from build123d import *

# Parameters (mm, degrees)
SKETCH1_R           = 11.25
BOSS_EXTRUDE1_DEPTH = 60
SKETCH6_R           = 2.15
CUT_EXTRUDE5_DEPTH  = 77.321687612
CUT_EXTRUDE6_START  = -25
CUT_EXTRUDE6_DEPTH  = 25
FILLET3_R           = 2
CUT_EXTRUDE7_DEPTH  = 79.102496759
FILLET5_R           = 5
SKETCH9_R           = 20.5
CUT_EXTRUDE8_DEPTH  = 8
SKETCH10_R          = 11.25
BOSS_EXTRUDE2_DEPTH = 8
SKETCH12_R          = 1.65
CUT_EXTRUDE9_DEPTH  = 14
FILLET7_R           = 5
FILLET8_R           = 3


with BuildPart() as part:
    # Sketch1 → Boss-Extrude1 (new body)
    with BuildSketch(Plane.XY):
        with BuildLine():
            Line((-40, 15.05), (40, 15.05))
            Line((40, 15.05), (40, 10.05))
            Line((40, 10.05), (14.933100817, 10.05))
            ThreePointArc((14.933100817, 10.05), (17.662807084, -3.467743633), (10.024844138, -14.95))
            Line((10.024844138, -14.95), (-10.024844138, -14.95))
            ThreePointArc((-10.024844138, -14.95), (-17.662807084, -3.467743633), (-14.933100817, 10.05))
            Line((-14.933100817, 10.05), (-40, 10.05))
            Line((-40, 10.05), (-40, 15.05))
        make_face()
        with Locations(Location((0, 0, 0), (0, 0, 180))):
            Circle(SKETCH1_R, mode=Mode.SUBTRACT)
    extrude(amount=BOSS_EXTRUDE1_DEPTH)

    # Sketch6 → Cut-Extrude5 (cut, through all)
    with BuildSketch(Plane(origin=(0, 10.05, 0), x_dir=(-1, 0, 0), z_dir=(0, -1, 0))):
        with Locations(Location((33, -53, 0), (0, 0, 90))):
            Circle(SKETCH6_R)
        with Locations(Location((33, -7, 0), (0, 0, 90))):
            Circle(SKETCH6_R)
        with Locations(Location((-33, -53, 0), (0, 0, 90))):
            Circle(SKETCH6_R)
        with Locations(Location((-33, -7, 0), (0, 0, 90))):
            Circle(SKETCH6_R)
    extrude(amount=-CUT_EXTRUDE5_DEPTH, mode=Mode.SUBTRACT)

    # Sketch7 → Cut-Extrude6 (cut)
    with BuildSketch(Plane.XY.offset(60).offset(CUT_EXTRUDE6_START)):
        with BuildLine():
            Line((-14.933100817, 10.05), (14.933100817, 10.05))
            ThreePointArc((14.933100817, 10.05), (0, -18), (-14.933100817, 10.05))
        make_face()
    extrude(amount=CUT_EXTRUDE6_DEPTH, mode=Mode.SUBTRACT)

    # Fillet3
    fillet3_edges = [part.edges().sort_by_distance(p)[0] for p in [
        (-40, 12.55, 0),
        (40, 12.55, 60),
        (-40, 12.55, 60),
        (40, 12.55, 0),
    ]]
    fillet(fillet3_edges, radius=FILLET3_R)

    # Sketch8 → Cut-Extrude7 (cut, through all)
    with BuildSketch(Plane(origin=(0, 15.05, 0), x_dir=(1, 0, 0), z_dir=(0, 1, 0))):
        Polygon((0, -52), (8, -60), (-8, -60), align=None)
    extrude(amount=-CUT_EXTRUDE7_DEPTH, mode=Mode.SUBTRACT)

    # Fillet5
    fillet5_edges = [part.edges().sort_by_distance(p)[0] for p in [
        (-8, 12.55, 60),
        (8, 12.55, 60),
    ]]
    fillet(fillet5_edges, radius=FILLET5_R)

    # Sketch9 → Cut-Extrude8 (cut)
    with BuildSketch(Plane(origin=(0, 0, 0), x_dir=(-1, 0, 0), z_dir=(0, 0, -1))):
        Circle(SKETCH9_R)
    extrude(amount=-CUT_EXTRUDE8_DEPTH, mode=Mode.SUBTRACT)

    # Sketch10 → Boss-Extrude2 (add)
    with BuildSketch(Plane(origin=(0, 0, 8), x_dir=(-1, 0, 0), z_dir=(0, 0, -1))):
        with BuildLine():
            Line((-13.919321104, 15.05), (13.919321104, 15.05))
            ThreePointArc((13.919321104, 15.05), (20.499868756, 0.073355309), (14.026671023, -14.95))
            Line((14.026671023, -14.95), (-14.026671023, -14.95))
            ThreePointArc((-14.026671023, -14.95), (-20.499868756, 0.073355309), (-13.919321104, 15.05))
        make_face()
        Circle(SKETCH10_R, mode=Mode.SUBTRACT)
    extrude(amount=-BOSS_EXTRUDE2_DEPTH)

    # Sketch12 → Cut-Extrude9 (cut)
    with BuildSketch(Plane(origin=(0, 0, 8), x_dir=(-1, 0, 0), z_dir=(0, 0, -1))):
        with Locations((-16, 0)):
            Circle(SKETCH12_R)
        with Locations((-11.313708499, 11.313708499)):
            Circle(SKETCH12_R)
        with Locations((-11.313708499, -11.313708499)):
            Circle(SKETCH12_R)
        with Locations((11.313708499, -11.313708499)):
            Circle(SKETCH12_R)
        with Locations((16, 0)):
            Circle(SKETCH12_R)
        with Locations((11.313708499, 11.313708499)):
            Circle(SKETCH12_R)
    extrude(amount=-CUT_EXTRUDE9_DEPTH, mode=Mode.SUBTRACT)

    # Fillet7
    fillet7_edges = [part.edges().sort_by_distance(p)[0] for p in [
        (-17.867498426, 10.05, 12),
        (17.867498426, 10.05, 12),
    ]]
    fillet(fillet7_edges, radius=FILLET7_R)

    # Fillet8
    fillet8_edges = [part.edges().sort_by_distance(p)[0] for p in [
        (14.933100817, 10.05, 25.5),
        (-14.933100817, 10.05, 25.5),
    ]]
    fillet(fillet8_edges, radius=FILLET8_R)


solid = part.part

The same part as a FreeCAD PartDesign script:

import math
import FreeCAD as App
import Part
import Sketcher
from FreeCAD import Vector
Q = App.Units.Quantity


def edges_at(feature, points):
    """Names of the edges that pass closest to the given points."""
    edges = feature.Shape.Edges
    near = lambda p: min(range(len(edges)), key=lambda i: edges[i].distToShape(Part.Vertex(*p))[0])
    return sorted({f"Edge{near(p) + 1}" for p in points})

doc = App.newDocument("Part")
body = doc.addObject("PartDesign::Body", "Body")

# Sketch on XY plane
sketch1 = body.newObject("Sketcher::SketchObject", "Sketch")
sketch1.AttachmentSupport = (doc.getObject("XY_Plane"), [""])
sketch1.MapMode = "FlatFace"
sketch1.addGeometry([
    Part.LineSegment(Vector(40, 15, 0), Vector(-40, 15, 0)),  # 0
    Part.LineSegment(Vector(-40, 15, 0), Vector(-40, 10, 0)),  # 1
    Part.LineSegment(Vector(-40, 10, 0), Vector(-15, 10, 0)),  # 2
    Part.ArcOfCircle(Part.Circle(Vector(0, 0, 0), Vector(0, 0, 1), 18), math.radians(146), math.radians(236)),  # 3
    Part.LineSegment(Vector(-10, -15, 0), Vector(10, -15, 0)),  # 4
    Part.ArcOfCircle(Part.Circle(Vector(0, 0, 0), Vector(0, 0, 1), 18), math.radians(-56), math.radians(34)),  # 5
    Part.LineSegment(Vector(15, 10, 0), Vector(40, 10, 0)),  # 6
    Part.LineSegment(Vector(40, 10, 0), Vector(40, 15, 0)),  # 7
    Part.Circle(Vector(0, 0, 0), Vector(0, 0, 1), 11),  # 8
], False)
sketch1.addConstraint([
    Sketcher.Constraint("Coincident", 0, 2, 1, 1),
    Sketcher.Constraint("Coincident", 1, 2, 2, 1),
    Sketcher.Constraint("Coincident", 2, 2, 3, 1),
    Sketcher.Constraint("Coincident", 3, 2, 4, 1),
    Sketcher.Constraint("Coincident", 4, 2, 5, 1),
    Sketcher.Constraint("Coincident", 5, 2, 6, 1),
    Sketcher.Constraint("Coincident", 6, 2, 7, 1),
    Sketcher.Constraint("Coincident", 7, 2, 0, 1),
    Sketcher.Constraint("Horizontal", 0),
    Sketcher.Constraint("Vertical", 1),
    Sketcher.Constraint("Horizontal", 2),
    Sketcher.Constraint("Horizontal", 4),
    Sketcher.Constraint("Horizontal", 6),
    Sketcher.Constraint("Vertical", 7),
    Sketcher.Constraint("Coincident", 3, 3, -1, 1),
    Sketcher.Constraint("Coincident", 5, 3, -1, 1),
    Sketcher.Constraint("Coincident", 8, 3, -1, 1),
    Sketcher.Constraint("Equal", 3, 5),
    Sketcher.Constraint("Symmetric", 1, 2, 6, 2, -2),
    Sketcher.Constraint("Radius", 3, Q("18 mm")),
    Sketcher.Constraint("Diameter", 8, Q("22.5 mm")),
    Sketcher.Constraint("DistanceX", 0, 2, 0, 1, Q("80 mm")),
    Sketcher.Constraint("DistanceY", 1, 2, 1, 1, Q("5 mm")),
    Sketcher.Constraint("DistanceY", 3, 2, 2, 2, Q("25 mm")),
    Sketcher.Constraint("DistanceY", -1, 1, 0, 2, Q("15.05 mm")),
])
pad1 = body.newObject("PartDesign::Pad", "Pad")
pad1.Profile = sketch1
pad1.Length = 60

# Sketch on XZ plane
sketch2 = body.newObject("Sketcher::SketchObject", "Sketch001")
sketch2.AttachmentSupport = (doc.getObject("XZ_Plane"), [""])
sketch2.MapMode = "FlatFace"
sketch2.AttachmentOffset = App.Placement(Vector(0, 0, -10.05), App.Rotation())
sketch2.addGeometry([
    Part.Circle(Vector(-33, 53, 0), Vector(0, 0, 1), 2.1),
    Part.Circle(Vector(-33, 7, 0), Vector(0, 0, 1), 2.1),
    Part.Circle(Vector(33, 53, 0), Vector(0, 0, 1), 2.1),
    Part.Circle(Vector(33, 7, 0), Vector(0, 0, 1), 2.1),
], False)
sketch2.addConstraint([
    Sketcher.Constraint("Equal", 0, 1),
    Sketcher.Constraint("Equal", 1, 2),
    Sketcher.Constraint("Equal", 2, 3),
    Sketcher.Constraint("Symmetric", 0, 3, 2, 3, -2),
    Sketcher.Constraint("Symmetric", 1, 3, 3, 3, -2),
    Sketcher.Constraint("Vertical", 0, 3, 1, 3),
    Sketcher.Constraint("Diameter", 0, Q("4.3 mm")),
    Sketcher.Constraint("DistanceX", 0, 3, -1, 1, Q("33 mm")),
    Sketcher.Constraint("DistanceY", -1, 1, 0, 3, Q("53 mm")),
    Sketcher.Constraint("DistanceY", -1, 1, 1, 3, Q("7 mm")),
])
pocket1 = body.newObject("PartDesign::Pocket", "Pocket")
pocket1.Profile = sketch2
pocket1.Type = "ThroughAll"

# Sketch on XY plane
sketch3 = body.newObject("Sketcher::SketchObject", "Sketch002")
sketch3.AttachmentSupport = (doc.getObject("XY_Plane"), [""])
sketch3.MapMode = "FlatFace"
sketch3.AttachmentOffset = App.Placement(Vector(0, 0, 35), App.Rotation())
sketch3.addGeometry([
    Part.LineSegment(Vector(15, 10, 0), Vector(-15, 10, 0)),
    Part.ArcOfCircle(Part.Circle(Vector(0, 0, 0), Vector(0, 0, 1), 18), math.radians(146), math.radians(394)),
], False)
sketch3.addConstraint([
    Sketcher.Constraint("Coincident", 0, 1, 1, 2),
    Sketcher.Constraint("Coincident", 1, 1, 0, 2),
    Sketcher.Constraint("Horizontal", 0),
    Sketcher.Constraint("Coincident", 1, 3, -1, 1),
    Sketcher.Constraint("Radius", 1, Q("18 mm")),
    Sketcher.Constraint("DistanceY", -1, 1, 0, 1, Q("10.05 mm")),
])
pocket2 = body.newObject("PartDesign::Pocket", "Pocket001")
pocket2.Profile = sketch3
pocket2.Length = 25
pocket2.Reversed = True
doc.recompute()

fillet = body.newObject("PartDesign::Fillet", "Fillet")
fillet.Base = (pocket2, edges_at(pocket2, [
    (-40, 12.55, 0),
    (40, 12.55, 60),
    (-40, 12.55, 60),
    (40, 12.55, 0),
]))
fillet.Radius = 2

# Sketch on XZ plane
sketch4 = body.newObject("Sketcher::SketchObject", "Sketch003")
sketch4.AttachmentSupport = (doc.getObject("XZ_Plane"), [""])
sketch4.MapMode = "FlatFace"
sketch4.AttachmentOffset = App.Placement(Vector(0, 0, -15.05), App.Rotation())
sketch4.addGeometry([
    Part.LineSegment(Vector(8, 60, 0), Vector(0, 52, 0)),
    Part.LineSegment(Vector(0, 52, 0), Vector(-8, 60, 0)),
    Part.LineSegment(Vector(-8, 60, 0), Vector(8, 60, 0)),
], False)
sketch4.addConstraint([
    Sketcher.Constraint("Coincident", 0, 2, 1, 1),
    Sketcher.Constraint("Coincident", 1, 2, 2, 1),
    Sketcher.Constraint("Coincident", 2, 2, 0, 1),
    Sketcher.Constraint("Horizontal", 2),
    Sketcher.Constraint("PointOnObject", 0, 2, -2),
    Sketcher.Constraint("Perpendicular", 0, 1),
    Sketcher.Constraint("Equal", 0, 1),
    Sketcher.Constraint("DistanceX", 2, 1, 2, 2, Q("16 mm")),
    Sketcher.Constraint("DistanceY", -1, 1, 0, 2, Q("52 mm")),
])
pocket3 = body.newObject("PartDesign::Pocket", "Pocket002")
pocket3.Profile = sketch4
pocket3.Type = "ThroughAll"
pocket3.Reversed = True
doc.recompute()

fillet2 = body.newObject("PartDesign::Fillet", "Fillet001")
fillet2.Base = (pocket3, edges_at(pocket3, [(-8, 12.55, 60), (8, 12.55, 60)]))
fillet2.Radius = 5

# Sketch on XY plane
sketch5 = body.newObject("Sketcher::SketchObject", "Sketch004")
sketch5.AttachmentSupport = (doc.getObject("XY_Plane"), [""])
sketch5.MapMode = "FlatFace"
sketch5.addGeometry(Part.Circle(Vector(0, 0, 0), Vector(0, 0, 1), 20), False)
sketch5.addConstraint([
    Sketcher.Constraint("Coincident", 0, 3, -1, 1),
    Sketcher.Constraint("Diameter", 0, Q("41 mm")),
])
pocket4 = body.newObject("PartDesign::Pocket", "Pocket003")
pocket4.Profile = sketch5
pocket4.Length = 8
pocket4.Reversed = True

# Sketch on XY plane
sketch6 = body.newObject("Sketcher::SketchObject", "Sketch005")
sketch6.AttachmentSupport = (doc.getObject("XY_Plane"), [""])
sketch6.MapMode = "FlatFace"
sketch6.AttachmentOffset = App.Placement(Vector(0, 0, 8), App.Rotation())
sketch6.addGeometry([
    Part.LineSegment(Vector(-14, 15, 0), Vector(14, 15, 0)),  # 0
    Part.ArcOfCircle(Part.Circle(Vector(0, 0, 0), Vector(0, 0, 1), 20), math.radians(-47), math.radians(47)),  # 1
    Part.LineSegment(Vector(14, -15, 0), Vector(-14, -15, 0)),  # 2
    Part.ArcOfCircle(Part.Circle(Vector(0, 0, 0), Vector(0, 0, 1), 20), math.radians(133), math.radians(227)),  # 3
    Part.Circle(Vector(0, 0, 0), Vector(0, 0, 1), 11),  # 4
], False)
sketch6.addConstraint([
    Sketcher.Constraint("Coincident", 0, 2, 1, 2),
    Sketcher.Constraint("Coincident", 1, 1, 2, 1),
    Sketcher.Constraint("Coincident", 2, 2, 3, 2),
    Sketcher.Constraint("Coincident", 3, 1, 0, 1),
    Sketcher.Constraint("Horizontal", 0),
    Sketcher.Constraint("Horizontal", 2),
    Sketcher.Constraint("Coincident", 1, 3, -1, 1),
    Sketcher.Constraint("Coincident", 3, 3, -1, 1),
    Sketcher.Constraint("Coincident", 4, 3, -1, 1),
    Sketcher.Constraint("Equal", 1, 3),
    Sketcher.Constraint("Diameter", 4, Q("22.5 mm")),
    Sketcher.Constraint("Radius", 1, Q("20.5 mm")),
    Sketcher.Constraint("DistanceY", 1, 1, 0, 2, Q("30 mm")),
    Sketcher.Constraint("DistanceY", -1, 1, 0, 2, Q("15.05 mm")),
])
pad2 = body.newObject("PartDesign::Pad", "Pad001")
pad2.Profile = sketch6
pad2.Length = 8

# Sketch on XY plane
sketch7 = body.newObject("Sketcher::SketchObject", "Sketch006")
sketch7.AttachmentSupport = (doc.getObject("XY_Plane"), [""])
sketch7.MapMode = "FlatFace"
sketch7.AttachmentOffset = App.Placement(Vector(0, 0, 8), App.Rotation())
sketch7.addGeometry([
    Part.Circle(Vector(16, 0, 0), Vector(0, 0, 1), 1.6),  # 0
    Part.Circle(Vector(11.3, 11.3, 0), Vector(0, 0, 1), 1.6),  # 1
    Part.Circle(Vector(11.3, -11.3, 0), Vector(0, 0, 1), 1.6),  # 2
    Part.Circle(Vector(-11.3, -11.3, 0), Vector(0, 0, 1), 1.6),  # 3
    Part.Circle(Vector(-16, 0, 0), Vector(0, 0, 1), 1.6),  # 4
    Part.Circle(Vector(-11.3, 11.3, 0), Vector(0, 0, 1), 1.6),  # 5
], False)
sketch7.addConstraint([
    Sketcher.Constraint("Equal", 0, 1),
    Sketcher.Constraint("Equal", 1, 2),
    Sketcher.Constraint("Equal", 2, 3),
    Sketcher.Constraint("Equal", 3, 4),
    Sketcher.Constraint("Equal", 4, 5),
    Sketcher.Constraint("Symmetric", 1, 3, 3, 3, -1, 1),
    Sketcher.Constraint("Symmetric", 0, 3, 4, 3, -1, 1),
    Sketcher.Constraint("Symmetric", 2, 3, 5, 3, -1, 1),
    Sketcher.Constraint("Symmetric", 2, 3, 3, 3, -2),
    Sketcher.Constraint("PointOnObject", 0, 3, -1),
    Sketcher.Constraint("Diameter", 0, Q("3.3 mm")),
    Sketcher.Constraint("DistanceX", -1, 1, 0, 3, Q("16 mm")),
    Sketcher.Constraint("DistanceX", -1, 1, 1, 3, Q("11.313708 mm")),
    Sketcher.Constraint("DistanceY", -1, 1, 1, 3, Q("11.313708 mm")),
])
pocket5 = body.newObject("PartDesign::Pocket", "Pocket004")
pocket5.Profile = sketch7
pocket5.Length = 14
pocket5.Reversed = True
doc.recompute()

fillet3 = body.newObject("PartDesign::Fillet", "Fillet002")
fillet3.Base = (pocket5, edges_at(pocket5, [(-17.867, 10.05, 12), (17.867, 10.05, 12)]))
fillet3.Radius = 5
doc.recompute()

fillet4 = body.newObject("PartDesign::Fillet", "Fillet003")
fillet4.Base = (fillet3, edges_at(fillet3, [(14.933, 10.05, 25.5), (-14.933, 10.05, 25.5)]))
fillet4.Radius = 3

doc.recompute()
